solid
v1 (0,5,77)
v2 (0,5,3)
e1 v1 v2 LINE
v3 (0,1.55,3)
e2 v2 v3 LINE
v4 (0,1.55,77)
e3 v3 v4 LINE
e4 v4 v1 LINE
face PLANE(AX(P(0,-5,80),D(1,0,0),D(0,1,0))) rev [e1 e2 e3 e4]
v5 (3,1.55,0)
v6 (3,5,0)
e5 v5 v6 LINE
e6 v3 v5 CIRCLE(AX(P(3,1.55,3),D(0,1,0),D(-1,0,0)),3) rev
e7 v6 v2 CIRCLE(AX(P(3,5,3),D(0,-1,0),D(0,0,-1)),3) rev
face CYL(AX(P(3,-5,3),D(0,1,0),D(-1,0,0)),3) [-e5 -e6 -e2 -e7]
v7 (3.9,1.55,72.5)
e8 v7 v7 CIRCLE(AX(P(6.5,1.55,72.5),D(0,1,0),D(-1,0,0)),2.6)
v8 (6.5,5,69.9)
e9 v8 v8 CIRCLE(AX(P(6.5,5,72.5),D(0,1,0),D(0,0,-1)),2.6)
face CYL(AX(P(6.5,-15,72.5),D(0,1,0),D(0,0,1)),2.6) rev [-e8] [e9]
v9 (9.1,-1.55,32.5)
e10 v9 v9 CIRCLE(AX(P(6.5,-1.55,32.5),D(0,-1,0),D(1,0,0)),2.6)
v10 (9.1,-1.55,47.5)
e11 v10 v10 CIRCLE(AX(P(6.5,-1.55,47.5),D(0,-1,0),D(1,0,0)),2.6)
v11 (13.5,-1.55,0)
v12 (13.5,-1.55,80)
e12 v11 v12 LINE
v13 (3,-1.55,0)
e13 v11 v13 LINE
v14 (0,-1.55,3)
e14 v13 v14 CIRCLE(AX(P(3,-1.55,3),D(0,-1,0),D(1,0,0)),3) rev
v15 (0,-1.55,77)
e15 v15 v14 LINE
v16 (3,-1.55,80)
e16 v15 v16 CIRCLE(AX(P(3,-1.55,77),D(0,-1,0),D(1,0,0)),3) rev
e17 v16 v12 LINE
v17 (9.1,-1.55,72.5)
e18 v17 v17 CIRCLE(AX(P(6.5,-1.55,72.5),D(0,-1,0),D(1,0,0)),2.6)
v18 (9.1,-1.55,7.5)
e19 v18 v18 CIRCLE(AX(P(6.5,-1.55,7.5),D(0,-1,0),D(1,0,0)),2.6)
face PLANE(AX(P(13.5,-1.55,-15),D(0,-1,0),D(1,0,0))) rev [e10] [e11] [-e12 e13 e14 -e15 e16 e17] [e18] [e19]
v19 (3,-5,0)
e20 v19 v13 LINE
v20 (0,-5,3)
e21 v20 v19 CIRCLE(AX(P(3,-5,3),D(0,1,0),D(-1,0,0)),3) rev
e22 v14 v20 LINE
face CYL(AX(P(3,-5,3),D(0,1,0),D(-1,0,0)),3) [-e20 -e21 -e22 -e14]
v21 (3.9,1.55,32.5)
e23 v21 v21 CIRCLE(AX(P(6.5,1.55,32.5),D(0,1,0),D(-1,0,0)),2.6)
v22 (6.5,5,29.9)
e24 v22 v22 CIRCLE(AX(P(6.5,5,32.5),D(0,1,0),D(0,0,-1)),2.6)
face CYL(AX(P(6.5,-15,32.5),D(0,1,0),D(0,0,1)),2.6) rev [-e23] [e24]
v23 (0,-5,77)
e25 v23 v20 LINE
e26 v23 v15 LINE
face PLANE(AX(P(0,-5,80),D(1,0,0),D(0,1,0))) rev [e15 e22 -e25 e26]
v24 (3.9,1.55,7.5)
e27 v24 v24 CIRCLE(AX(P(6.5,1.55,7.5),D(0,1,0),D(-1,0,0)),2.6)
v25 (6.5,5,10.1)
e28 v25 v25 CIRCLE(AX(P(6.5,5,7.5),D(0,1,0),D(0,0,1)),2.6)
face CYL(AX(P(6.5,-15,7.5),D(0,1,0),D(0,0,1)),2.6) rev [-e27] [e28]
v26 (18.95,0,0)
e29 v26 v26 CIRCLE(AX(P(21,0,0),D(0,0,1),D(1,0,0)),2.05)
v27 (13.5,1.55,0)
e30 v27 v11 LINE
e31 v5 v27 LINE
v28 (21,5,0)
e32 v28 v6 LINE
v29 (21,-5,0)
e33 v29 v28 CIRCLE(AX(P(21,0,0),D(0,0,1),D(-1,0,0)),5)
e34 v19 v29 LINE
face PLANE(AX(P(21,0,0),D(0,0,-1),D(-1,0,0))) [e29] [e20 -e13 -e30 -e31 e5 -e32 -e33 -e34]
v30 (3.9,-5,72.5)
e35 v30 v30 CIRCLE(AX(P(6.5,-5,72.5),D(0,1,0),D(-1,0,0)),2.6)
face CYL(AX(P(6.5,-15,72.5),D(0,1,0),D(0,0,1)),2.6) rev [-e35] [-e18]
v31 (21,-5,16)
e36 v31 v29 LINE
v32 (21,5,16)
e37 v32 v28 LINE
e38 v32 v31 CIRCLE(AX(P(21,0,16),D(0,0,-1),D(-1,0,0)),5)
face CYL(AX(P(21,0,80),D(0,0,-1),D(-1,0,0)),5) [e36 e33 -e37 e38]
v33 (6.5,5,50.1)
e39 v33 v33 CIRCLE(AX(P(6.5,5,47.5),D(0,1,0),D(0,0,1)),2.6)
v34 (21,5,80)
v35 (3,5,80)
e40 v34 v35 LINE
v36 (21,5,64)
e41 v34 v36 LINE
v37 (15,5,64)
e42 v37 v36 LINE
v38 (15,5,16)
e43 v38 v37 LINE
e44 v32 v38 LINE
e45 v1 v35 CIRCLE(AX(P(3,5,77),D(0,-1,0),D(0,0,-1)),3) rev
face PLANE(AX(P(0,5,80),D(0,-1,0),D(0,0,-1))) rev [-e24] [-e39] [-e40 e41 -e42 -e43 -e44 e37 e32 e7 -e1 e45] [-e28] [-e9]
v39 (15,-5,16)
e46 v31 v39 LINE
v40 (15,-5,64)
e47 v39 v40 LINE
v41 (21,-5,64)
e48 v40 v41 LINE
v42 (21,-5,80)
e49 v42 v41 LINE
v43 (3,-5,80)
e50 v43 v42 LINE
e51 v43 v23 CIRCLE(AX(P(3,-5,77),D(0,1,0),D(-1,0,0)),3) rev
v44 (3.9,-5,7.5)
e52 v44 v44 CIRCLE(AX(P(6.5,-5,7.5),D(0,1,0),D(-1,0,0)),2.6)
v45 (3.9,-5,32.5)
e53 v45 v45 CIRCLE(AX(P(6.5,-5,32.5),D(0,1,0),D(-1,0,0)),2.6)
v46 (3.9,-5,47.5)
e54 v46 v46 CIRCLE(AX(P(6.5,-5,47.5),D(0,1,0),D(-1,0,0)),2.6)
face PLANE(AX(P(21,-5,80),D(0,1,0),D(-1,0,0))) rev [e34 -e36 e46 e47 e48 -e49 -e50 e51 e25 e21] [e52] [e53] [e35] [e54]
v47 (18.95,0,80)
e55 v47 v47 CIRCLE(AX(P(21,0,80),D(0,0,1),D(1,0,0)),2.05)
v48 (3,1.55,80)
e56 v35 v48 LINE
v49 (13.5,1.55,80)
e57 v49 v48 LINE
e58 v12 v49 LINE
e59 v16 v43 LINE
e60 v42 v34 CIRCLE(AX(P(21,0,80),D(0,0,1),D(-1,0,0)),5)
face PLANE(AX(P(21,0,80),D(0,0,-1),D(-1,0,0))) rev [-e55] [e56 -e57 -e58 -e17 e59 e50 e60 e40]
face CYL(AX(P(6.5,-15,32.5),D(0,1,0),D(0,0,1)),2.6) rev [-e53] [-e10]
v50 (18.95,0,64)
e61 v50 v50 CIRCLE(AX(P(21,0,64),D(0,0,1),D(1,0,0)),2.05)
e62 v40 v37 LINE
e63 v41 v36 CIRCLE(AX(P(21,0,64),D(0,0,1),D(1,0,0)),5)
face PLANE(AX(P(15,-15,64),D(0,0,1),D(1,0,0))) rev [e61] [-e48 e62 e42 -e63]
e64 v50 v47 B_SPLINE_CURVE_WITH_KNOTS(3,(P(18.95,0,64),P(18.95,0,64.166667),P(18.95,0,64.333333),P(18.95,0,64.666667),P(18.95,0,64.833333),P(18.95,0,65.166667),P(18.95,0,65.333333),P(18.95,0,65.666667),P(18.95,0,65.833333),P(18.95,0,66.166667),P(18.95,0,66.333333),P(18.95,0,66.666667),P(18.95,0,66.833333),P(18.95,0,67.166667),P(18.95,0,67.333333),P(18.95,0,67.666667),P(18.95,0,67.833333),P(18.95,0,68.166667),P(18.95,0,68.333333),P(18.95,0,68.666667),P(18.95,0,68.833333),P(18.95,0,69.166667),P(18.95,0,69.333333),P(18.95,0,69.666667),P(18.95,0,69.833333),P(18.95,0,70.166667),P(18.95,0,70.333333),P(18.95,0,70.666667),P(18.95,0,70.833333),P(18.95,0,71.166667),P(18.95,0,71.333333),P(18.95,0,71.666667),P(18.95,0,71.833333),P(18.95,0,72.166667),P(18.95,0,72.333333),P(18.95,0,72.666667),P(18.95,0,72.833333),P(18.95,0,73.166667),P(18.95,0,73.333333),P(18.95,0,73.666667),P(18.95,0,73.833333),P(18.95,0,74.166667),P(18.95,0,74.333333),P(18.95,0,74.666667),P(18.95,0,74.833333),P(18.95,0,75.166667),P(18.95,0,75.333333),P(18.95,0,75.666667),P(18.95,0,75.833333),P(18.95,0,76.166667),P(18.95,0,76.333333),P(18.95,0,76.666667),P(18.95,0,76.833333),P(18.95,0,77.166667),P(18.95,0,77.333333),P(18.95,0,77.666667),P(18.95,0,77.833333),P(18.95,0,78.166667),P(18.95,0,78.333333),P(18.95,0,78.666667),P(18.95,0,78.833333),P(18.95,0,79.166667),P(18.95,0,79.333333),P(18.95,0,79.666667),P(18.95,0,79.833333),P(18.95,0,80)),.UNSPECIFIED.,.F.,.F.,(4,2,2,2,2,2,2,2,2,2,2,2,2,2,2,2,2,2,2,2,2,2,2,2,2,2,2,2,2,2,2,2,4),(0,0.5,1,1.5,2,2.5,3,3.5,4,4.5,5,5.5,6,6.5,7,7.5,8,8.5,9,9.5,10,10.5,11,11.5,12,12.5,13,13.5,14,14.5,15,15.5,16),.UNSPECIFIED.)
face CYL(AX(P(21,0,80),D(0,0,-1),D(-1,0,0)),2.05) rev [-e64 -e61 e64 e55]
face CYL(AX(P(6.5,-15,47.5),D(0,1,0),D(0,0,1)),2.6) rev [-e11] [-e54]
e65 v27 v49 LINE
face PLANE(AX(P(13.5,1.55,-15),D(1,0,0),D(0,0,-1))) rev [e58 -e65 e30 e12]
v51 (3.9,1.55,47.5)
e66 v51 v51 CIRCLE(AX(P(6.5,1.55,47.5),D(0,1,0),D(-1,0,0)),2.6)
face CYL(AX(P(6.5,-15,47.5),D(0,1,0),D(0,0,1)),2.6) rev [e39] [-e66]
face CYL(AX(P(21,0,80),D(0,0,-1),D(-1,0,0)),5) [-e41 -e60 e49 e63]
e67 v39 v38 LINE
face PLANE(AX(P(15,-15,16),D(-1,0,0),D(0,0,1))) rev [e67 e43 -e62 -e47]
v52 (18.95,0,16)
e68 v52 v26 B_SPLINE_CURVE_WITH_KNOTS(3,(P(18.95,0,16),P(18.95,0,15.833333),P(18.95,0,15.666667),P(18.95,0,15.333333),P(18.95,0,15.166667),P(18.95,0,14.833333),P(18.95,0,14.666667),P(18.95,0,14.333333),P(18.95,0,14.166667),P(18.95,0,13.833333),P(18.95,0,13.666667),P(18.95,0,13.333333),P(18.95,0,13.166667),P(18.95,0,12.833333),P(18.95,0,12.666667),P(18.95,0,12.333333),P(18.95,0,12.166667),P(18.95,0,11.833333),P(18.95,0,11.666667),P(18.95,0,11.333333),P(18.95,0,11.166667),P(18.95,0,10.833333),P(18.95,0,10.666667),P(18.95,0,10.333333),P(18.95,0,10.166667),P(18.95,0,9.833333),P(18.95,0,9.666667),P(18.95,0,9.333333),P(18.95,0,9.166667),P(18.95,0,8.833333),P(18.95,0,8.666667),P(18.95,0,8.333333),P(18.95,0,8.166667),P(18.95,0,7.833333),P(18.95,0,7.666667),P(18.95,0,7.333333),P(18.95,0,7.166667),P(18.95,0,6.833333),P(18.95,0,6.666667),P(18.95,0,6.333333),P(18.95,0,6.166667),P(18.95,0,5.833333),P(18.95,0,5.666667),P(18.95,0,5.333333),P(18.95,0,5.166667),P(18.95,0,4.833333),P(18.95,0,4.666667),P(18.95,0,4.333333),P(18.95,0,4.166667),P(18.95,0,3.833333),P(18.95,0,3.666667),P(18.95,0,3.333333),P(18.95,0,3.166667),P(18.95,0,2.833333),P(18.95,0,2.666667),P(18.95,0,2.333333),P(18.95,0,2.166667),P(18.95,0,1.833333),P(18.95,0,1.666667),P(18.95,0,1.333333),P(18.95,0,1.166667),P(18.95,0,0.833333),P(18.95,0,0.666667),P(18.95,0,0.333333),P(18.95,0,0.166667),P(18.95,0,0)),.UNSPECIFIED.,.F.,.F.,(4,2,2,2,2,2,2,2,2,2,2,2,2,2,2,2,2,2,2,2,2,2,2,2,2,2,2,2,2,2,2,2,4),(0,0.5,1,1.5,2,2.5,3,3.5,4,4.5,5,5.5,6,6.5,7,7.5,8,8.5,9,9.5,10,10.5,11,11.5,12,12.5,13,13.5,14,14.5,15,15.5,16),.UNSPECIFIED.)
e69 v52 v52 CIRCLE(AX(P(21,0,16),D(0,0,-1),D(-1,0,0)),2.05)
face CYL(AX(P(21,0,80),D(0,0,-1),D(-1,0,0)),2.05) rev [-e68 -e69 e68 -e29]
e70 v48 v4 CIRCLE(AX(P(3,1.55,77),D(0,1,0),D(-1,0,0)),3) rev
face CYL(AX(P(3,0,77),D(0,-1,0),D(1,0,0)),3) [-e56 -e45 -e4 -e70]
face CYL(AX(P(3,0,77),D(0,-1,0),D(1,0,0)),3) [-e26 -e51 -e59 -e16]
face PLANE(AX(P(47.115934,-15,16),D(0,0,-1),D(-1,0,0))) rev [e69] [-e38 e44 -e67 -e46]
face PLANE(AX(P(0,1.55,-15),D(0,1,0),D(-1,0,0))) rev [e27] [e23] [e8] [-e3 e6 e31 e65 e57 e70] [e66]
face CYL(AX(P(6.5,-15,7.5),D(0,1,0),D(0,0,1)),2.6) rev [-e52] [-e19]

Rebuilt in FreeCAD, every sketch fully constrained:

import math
import FreeCAD as App
import Part
import Sketcher
from FreeCAD import Vector


def edges_at(feature, points):
    """Names of the edges that pass closest to the given points."""
    edges = feature.Shape.Edges
    near = lambda p: min(range(len(edges)), key=lambda i: edges[i].distToShape(Part.Vertex(*p))[0])
    return sorted({f"Edge{near(p) + 1}" for p in points})

doc = App.newDocument("Part")
body = doc.addObject("PartDesign::Body", "Body")

sketch1 = doc.addObject("Sketcher::SketchObject", "Sketch")
body.addObject(sketch1)
sketch1.AttachmentSupport = (doc.XY_Plane, [""])
sketch1.MapMode = "FlatFace"
sketch1.addGeometry([
    Part.LineSegment(Vector(21, 5, 0), Vector(0, 5, 0)),
    Part.LineSegment(Vector(0, 5, 0), Vector(0, -5, 0)),
    Part.LineSegment(Vector(0, -5, 0), Vector(21, -5, 0)),
    Part.ArcOfCircle(Part.Circle(Vector(21, 0, 0), Vector(0, 0, 1), 5), math.radians(-90), math.radians(90)),
    Part.Circle(Vector(21, 0, 0), Vector(0, 0, 1), 2),
], False)
sketch1.addConstraint([
    Sketcher.Constraint("Coincident", 0, 2, 1, 1),
    Sketcher.Constraint("Coincident", 1, 2, 2, 1),
    Sketcher.Constraint("Tangent", 2, 2, 3, 1),
    Sketcher.Constraint("Tangent", 3, 2, 0, 1),
    Sketcher.Constraint("Horizontal", 0),
    Sketcher.Constraint("Vertical", 1),
    Sketcher.Constraint("Horizontal", 2),
    Sketcher.Constraint("Coincident", 4, 3, 3, 3),
    Sketcher.Constraint("Symmetric", 0, 2, 1, 2, -1, 1),
    Sketcher.Constraint("Radius", 3, 5.0),
    Sketcher.Constraint("Diameter", 4, 4.1),
    Sketcher.Constraint("DistanceX", 0, 2, 0, 1, 21.0),
])
pad1 = doc.addObject("PartDesign::Pad", "Pad")
body.addObject(pad1)
pad1.Profile = sketch1
pad1.Length = 80

sketch2 = doc.addObject("Sketcher::SketchObject", "Sketch001")
body.addObject(sketch2)
sketch2.AttachmentSupport = (doc.XY_Plane, [""])
sketch2.MapMode = "FlatFace"
sketch2.AttachmentOffset = App.Placement(Vector(0, 0, 80), App.Rotation())
sketch2.addGeometry([
    Part.LineSegment(Vector(0, 1.6, 0), Vector(0, -1.6, 0)),
    Part.LineSegment(Vector(0, -1.6, 0), Vector(13.5, -1.6, 0)),
    Part.LineSegment(Vector(13.5, -1.6, 0), Vector(13.5, 1.6, 0)),
    Part.LineSegment(Vector(13.5, 1.6, 0), Vector(0, 1.6, 0)),
], False)
sketch2.addConstraint([
    Sketcher.Constraint("Coincident", 0, 2, 1, 1),
    Sketcher.Constraint("Coincident", 1, 2, 2, 1),
    Sketcher.Constraint("Coincident", 2, 2, 3, 1),
    Sketcher.Constraint("Coincident", 3, 2, 0, 1),
    Sketcher.Constraint("Vertical", 0),
    Sketcher.Constraint("Horizontal", 1),
    Sketcher.Constraint("Vertical", 2),
    Sketcher.Constraint("Horizontal", 3),
    Sketcher.Constraint("Symmetric", 0, 2, 3, 2, -1, 1),
    Sketcher.Constraint("DistanceX", 1, 1, 1, 2, 13.5),
    Sketcher.Constraint("DistanceY", 0, 2, 0, 1, 3.1),
])
pocket1 = doc.addObject("PartDesign::Pocket", "Pocket")
body.addObject(pocket1)
pocket1.Profile = sketch2
pocket1.Length = 95

sketch3 = doc.addObject("Sketcher::SketchObject", "Sketch002")
body.addObject(sketch3)
sketch3.AttachmentSupport = (doc.XZ_Plane, [""])
sketch3.MapMode = "FlatFace"
sketch3.AttachmentOffset = App.Placement(Vector(0, 0, -5), App.Rotation())
sketch3.addGeometry([
    Part.Circle(Vector(6.5, 32.5, 0), Vector(0, 0, 1), 2.6),
    Part.Circle(Vector(6.5, 7.5, 0), Vector(0, 0, 1), 2.6),
    Part.Circle(Vector(6.5, 72.5, 0), Vector(0, 0, 1), 2.6),
    Part.Circle(Vector(6.5, 47.5, 0), Vector(0, 0, 1), 2.6),
], False)
sketch3.addConstraint([
    Sketcher.Constraint("Equal", 0, 1),
    Sketcher.Constraint("Equal", 1, 2),
    Sketcher.Constraint("Equal", 2, 3),
    Sketcher.Constraint("Vertical", 0, 3, 1, 3),
    Sketcher.Constraint("Vertical", 1, 3, 2, 3),
    Sketcher.Constraint("Vertical", 2, 3, 3, 3),
    Sketcher.Constraint("Diameter", 0, 5.2),
    Sketcher.Constraint("DistanceY", 1, 3, 0, 3, 25.0),
    Sketcher.Constraint("DistanceY", 0, 3, 2, 3, 40.0),
    Sketcher.Constraint("DistanceY", 0, 3, 3, 3, 15.0),
    Sketcher.Constraint("DistanceX", -1, 1, 0, 3, 6.5),
    Sketcher.Constraint("DistanceY", -1, 1, 0, 3, 32.5),
])
pocket2 = doc.addObject("PartDesign::Pocket", "Pocket001")
body.addObject(pocket2)
pocket2.Profile = sketch3
pocket2.Length = 20
pocket2.Reversed = True

sketch4 = doc.addObject("Sketcher::SketchObject", "Sketch003")
body.addObject(sketch4)
sketch4.AttachmentSupport = (doc.XZ_Plane, [""])
sketch4.MapMode = "FlatFace"
sketch4.AttachmentOffset = App.Placement(Vector(0, 0, -5), App.Rotation())
sketch4.addGeometry([
    Part.LineSegment(Vector(15, 16, 0), Vector(15, 64, 0)),
    Part.LineSegment(Vector(15, 64, 0), Vector(47, 64, 0)),
    Part.LineSegment(Vector(47, 64, 0), Vector(47, 16, 0)),
    Part.LineSegment(Vector(47, 16, 0), Vector(15, 16, 0)),
], False)
sketch4.addConstraint([
    Sketcher.Constraint("Coincident", 0, 2, 1, 1),
    Sketcher.Constraint("Coincident", 1, 2, 2, 1),
    Sketcher.Constraint("Coincident", 2, 2, 3, 1),
    Sketcher.Constraint("Coincident", 3, 2, 0, 1),
    Sketcher.Constraint("Vertical", 0),
    Sketcher.Constraint("Horizontal", 1),
    Sketcher.Constraint("Vertical", 2),
    Sketcher.Constraint("Horizontal", 3),
    Sketcher.Constraint("DistanceY", 0, 1, 0, 2, 48.0),
    Sketcher.Constraint("DistanceX", -1, 1, 0, 2, 15.0),
    Sketcher.Constraint("DistanceY", -1, 1, 0, 2, 64.0),
    Sketcher.Constraint("DistanceX", 1, 1, 1, 2, 32.115934),
])
pocket3 = doc.addObject("PartDesign::Pocket", "Pocket002")
body.addObject(pocket3)
pocket3.Profile = sketch4
pocket3.Length = 20
pocket3.Reversed = True
doc.recompute()

fillet = doc.addObject("PartDesign::Fillet", "Fillet")
body.addObject(fillet)
fillet.Base = (pocket3, edges_at(pocket3, [
    (0, -3.275, 0),
    (0, -3.275, 80),
    (0, 3.275, 80),
    (0, 3.275, 0),
]))
fillet.Radius = 3

doc.recompute()
